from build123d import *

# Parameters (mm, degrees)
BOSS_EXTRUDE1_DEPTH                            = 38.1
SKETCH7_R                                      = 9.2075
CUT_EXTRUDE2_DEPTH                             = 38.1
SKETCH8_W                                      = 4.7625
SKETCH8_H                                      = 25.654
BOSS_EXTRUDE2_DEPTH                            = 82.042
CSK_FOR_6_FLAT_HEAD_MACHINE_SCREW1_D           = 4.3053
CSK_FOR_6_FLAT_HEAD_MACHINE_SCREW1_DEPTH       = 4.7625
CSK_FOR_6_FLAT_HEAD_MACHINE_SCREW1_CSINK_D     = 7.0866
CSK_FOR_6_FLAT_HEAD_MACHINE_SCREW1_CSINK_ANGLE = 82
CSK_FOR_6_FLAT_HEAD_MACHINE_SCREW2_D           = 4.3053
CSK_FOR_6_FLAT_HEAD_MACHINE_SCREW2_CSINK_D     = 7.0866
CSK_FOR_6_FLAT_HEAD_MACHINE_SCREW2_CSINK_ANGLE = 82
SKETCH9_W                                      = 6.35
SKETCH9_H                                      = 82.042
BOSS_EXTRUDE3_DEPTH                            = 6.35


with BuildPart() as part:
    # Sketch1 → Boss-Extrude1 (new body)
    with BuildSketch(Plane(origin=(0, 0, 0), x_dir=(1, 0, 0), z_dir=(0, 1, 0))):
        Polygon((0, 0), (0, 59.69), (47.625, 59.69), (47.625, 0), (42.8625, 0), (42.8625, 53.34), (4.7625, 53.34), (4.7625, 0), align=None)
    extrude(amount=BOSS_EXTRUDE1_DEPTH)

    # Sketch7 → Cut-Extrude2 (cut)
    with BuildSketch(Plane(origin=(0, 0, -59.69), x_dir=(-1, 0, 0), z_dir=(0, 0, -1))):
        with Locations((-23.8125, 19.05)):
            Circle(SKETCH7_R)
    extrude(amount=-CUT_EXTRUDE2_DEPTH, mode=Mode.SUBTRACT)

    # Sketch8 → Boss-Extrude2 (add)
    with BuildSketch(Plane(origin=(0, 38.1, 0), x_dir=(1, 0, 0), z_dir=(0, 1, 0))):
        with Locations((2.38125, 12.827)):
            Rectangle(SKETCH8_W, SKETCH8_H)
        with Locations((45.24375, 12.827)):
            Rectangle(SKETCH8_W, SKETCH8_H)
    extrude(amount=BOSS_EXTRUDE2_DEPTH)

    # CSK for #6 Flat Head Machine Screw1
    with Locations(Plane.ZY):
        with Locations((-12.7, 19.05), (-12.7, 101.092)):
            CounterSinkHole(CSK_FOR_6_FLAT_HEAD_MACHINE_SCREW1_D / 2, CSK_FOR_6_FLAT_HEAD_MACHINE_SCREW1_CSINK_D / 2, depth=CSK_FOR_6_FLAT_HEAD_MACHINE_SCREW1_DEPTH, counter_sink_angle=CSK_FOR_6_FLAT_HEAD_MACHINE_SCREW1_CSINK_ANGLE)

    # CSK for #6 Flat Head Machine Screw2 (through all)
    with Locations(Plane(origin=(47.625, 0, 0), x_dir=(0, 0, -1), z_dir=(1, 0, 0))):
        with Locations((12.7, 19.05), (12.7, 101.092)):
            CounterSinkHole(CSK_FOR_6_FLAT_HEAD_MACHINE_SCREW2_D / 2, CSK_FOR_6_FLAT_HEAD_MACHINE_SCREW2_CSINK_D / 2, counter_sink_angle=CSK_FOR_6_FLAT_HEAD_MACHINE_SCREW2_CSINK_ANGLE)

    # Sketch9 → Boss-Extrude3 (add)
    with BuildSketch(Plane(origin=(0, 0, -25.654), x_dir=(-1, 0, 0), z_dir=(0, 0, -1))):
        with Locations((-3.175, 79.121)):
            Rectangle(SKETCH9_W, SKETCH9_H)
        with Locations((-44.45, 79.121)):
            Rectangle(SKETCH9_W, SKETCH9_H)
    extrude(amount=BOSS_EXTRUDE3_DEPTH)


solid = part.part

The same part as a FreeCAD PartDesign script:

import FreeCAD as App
import Part
import Sketcher
Q = App.Units.Quantity


def add_polygon(sketch, points):
    """Adds a closed chain of lines whose ends are joined by coincident constraints."""
    first, n = sketch.GeometryCount, len(points)
    for a, b in zip(points, points[1:] + points[:1]):
        sketch.addGeometry(Part.LineSegment(App.Vector(*a, 0), App.Vector(*b, 0)), False)
    for i in range(n):
        sketch.addConstraint(Sketcher.Constraint("Coincident", first + i, 2, first + (i + 1) % n, 1))

doc = App.newDocument("Part")
body = doc.addObject("PartDesign::Body", "Body")

sketch1 = body.newObject("Sketcher::SketchObject", "Sketch")
sketch1.AttachmentSupport = (doc.getObject("XZ_Plane"), [""])
sketch1.MapMode = "FlatFace"
add_polygon(sketch1, [(0, -59.69), (0, 0), (4.7625, 0), (4.7625, -53.34), (42.8625, -53.34), (42.8625, 0), (47.625, 0), (47.625, -59.69)])
sketch1.addConstraint([
    Sketcher.Constraint("Vertical", 0),
    Sketcher.Constraint("Horizontal", 1),
    Sketcher.Constraint("Vertical", 2),
    Sketcher.Constraint("Horizontal", 3),
    Sketcher.Constraint("Vertical", 4),
    Sketcher.Constraint("Horizontal", 5),
    Sketcher.Constraint("Vertical", 6),
    Sketcher.Constraint("Horizontal", 7),
    Sketcher.Constraint("Coincident", 0, 2, -1, 1),
    Sketcher.Constraint("PointOnObject", 4, 2, -1),
    Sketcher.Constraint("Equal", 1, 5),
    Sketcher.Constraint("DistanceX", 3, 1, 3, 2, Q("1.5 in")),
    Sketcher.Constraint("DistanceY", 2, 2, 2, 1, Q("2.1 in")),
    Sketcher.Constraint("DistanceY", 0, 1, 0, 2, Q("2.35 in")),
    Sketcher.Constraint("DistanceX", 1, 1, 1, 2, Q("0.1875 in")),
])
pad1 = body.newObject("PartDesign::Pad", "Pad")
pad1.Profile = sketch1
pad1.Length = Q("1.5 in")
pad1.Reversed = True

sketch2 = body.newObject("Sketcher::SketchObject", "Sketch001")
sketch2.AttachmentSupport = (doc.getObject("XY_Plane"), [""])
sketch2.MapMode = "FlatFace"
sketch2.AttachmentOffset = App.Placement(App.Vector(0, 0, -2.35 * 25.4), App.Rotation())
sketch2.addGeometry(Part.Circle(App.Vector(23.8125, 19.05, 0), App.Vector(0, 0, 1), 9.2075), False)
sketch2.addConstraint([
    Sketcher.Constraint("Diameter", 0, Q("0.725 in")),
    Sketcher.Constraint("DistanceY", -1, 1, 0, 3, Q("0.75 in")),
    Sketcher.Constraint("DistanceX", -1, 1, 0, 3, Q("0.9375 in")),
])
pocket1 = body.newObject("PartDesign::Pocket", "Pocket")
pocket1.Profile = sketch2
pocket1.Length = Q("1.5 in")
pocket1.Reversed = True

sketch3 = body.newObject("Sketcher::SketchObject", "Sketch002")
sketch3.AttachmentSupport = (doc.getObject("XZ_Plane"), [""])
sketch3.MapMode = "FlatFace"
sketch3.AttachmentOffset = App.Placement(App.Vector(0, 0, -1.5 * 25.4), App.Rotation())
add_polygon(sketch3, [(0, -25.654), (0, 0), (4.7625, 0), (4.7625, -25.654)])
add_polygon(sketch3, [(42.8625, -25.654), (42.8625, 0), (47.625, 0), (47.625, -25.654)])
sketch3.addConstraint([
    Sketcher.Constraint("Vertical", 0),
    Sketcher.Constraint("Horizontal", 1),
    Sketcher.Constraint("Vertical", 2),
    Sketcher.Constraint("Horizontal", 3),
    Sketcher.Constraint("Vertical", 4),
    Sketcher.Constraint("Horizontal", 5),
    Sketcher.Constraint("Vertical", 6),
    Sketcher.Constraint("Horizontal", 7),
    Sketcher.Constraint("Coincident", 0, 2, -1, 1),
    Sketcher.Constraint("PointOnObject", 4, 2, -1),
    Sketcher.Constraint("Horizontal", 3, 2, 6, 2),
    Sketcher.Constraint("Equal", 3, 5),
    Sketcher.Constraint("DistanceY", 0, 1, 0, 2, Q("1.01 in")),
    Sketcher.Constraint("DistanceX", 1, 2, 4, 2, Q("1.5 in")),
    Sketcher.Constraint("DistanceX", 1, 1, 1, 2, Q("0.1875 in")),
])
pad2 = body.newObject("PartDesign::Pad", "Pad001")
pad2.Profile = sketch3
pad2.Length = Q("3.23 in")
pad2.Reversed = True

sketch4 = body.newObject("Sketcher::SketchObject", "Sketch003")
sketch4.AttachmentSupport = (doc.getObject("YZ_Plane"), [""])
sketch4.MapMode = "FlatFace"
sketch4.addGeometry([
    Part.Circle(App.Vector(19.05, -12.7, 0), App.Vector(0, 0, 1), 2.15265),
    Part.Circle(App.Vector(101.092, -12.7, 0), App.Vector(0, 0, 1), 2.15265),
], False)
sketch4.addConstraint([
    Sketcher.Constraint("Equal", 0, 1),
    Sketcher.Constraint("Horizontal", 0, 3, 1, 3),
    Sketcher.Constraint("Diameter", 0, Q("0.1695 in")),
    Sketcher.Constraint("DistanceY", 0, 3, -1, 1, Q("0.5 in")),
    Sketcher.Constraint("DistanceX", -1, 1, 0, 3, Q("0.75 in")),
    Sketcher.Constraint("DistanceX", -1, 1, 1, 3, Q("3.98 in")),
])
doc.recompute()
hole = body.newObject("PartDesign::Hole", "Hole")
hole.Profile = sketch4
hole.ThreadType = "None"
hole.Diameter = Q("0.1695 in")
hole.DepthType = "Dimension"
hole.Depth = Q("0.1875 in")
hole.DrillPoint = "Flat"
hole.HoleCutType = "Countersink"
hole.HoleCutDiameter = Q("0.279 in")
hole.HoleCutCountersinkAngle = 82
hole.Reversed = True

sketch5 = body.newObject("Sketcher::SketchObject", "Sketch004")
sketch5.AttachmentSupport = (doc.getObject("YZ_Plane"), [""])
sketch5.MapMode = "FlatFace"
sketch5.AttachmentOffset = App.Placement(App.Vector(0, 0, 1.875 * 25.4), App.Rotation())
sketch5.addGeometry([
    Part.Circle(App.Vector(19.05, -12.7, 0), App.Vector(0, 0, 1), 2.15265),
    Part.Circle(App.Vector(101.092, -12.7, 0), App.Vector(0, 0, 1), 2.15265),
], False)
sketch5.addConstraint([
    Sketcher.Constraint("Equal", 0, 1),
    Sketcher.Constraint("Horizontal", 0, 3, 1, 3),
    Sketcher.Constraint("Diameter", 0, Q("0.1695 in")),
    Sketcher.Constraint("DistanceY", 0, 3, -1, 1, Q("0.5 in")),
    Sketcher.Constraint("DistanceX", -1, 1, 0, 3, Q("0.75 in")),
    Sketcher.Constraint("DistanceX", -1, 1, 1, 3, Q("3.98 in")),
])
doc.recompute()
hole2 = body.newObject("PartDesign::Hole", "Hole001")
hole2.Profile = sketch5
hole2.ThreadType = "None"
hole2.Diameter = Q("0.1695 in")
hole2.DepthType = "ThroughAll"
hole2.HoleCutType = "Countersink"
hole2.HoleCutDiameter = Q("0.279 in")
hole2.HoleCutCountersinkAngle = 82

sketch6 = body.newObject("Sketcher::SketchObject", "Sketch005")
sketch6.AttachmentSupport = (doc.getObject("XY_Plane"), [""])
sketch6.MapMode = "FlatFace"
sketch6.AttachmentOffset = App.Placement(App.Vector(0, 0, -1.01 * 25.4), App.Rotation())
add_polygon(sketch6, [(6.35, 120.142), (6.35, 38.1), (0, 38.1), (0, 120.142)])
add_polygon(sketch6, [(47.625, 120.142), (47.625, 38.1), (41.275, 38.1), (41.275, 120.142)])
sketch6.addConstraint([
    Sketcher.Constraint("Vertical", 0),
    Sketcher.Constraint("Horizontal", 1),
    Sketcher.Constraint("Vertical", 2),
    Sketcher.Constraint("Horizontal", 3),
    Sketcher.Constraint("Vertical", 4),
    Sketcher.Constraint("Horizontal", 5),
    Sketcher.Constraint("Vertical", 6),
    Sketcher.Constraint("Horizontal", 7),
    Sketcher.Constraint("PointOnObject", 1, 2, -2),
    Sketcher.Constraint("Horizontal", 1, 2, 4, 2),
    Sketcher.Constraint("Horizontal", 3, 2, 6, 2),
    Sketcher.Constraint("Equal", 3, 5),
    Sketcher.Constraint("DistanceX", 1, 2, 1, 1, Q("0.25 in")),
    Sketcher.Constraint("DistanceY", 0, 2, 0, 1, Q("3.23 in")),
    Sketcher.Constraint("DistanceY", -1, 1, 0, 2, Q("1.5 in")),
    Sketcher.Constraint("DistanceX", -1, 1, 4, 2, Q("1.875 in")),
])
pad3 = body.newObject("PartDesign::Pad", "Pad002")
pad3.Profile = sketch6
pad3.Length = Q("0.25 in")
pad3.Reversed = True

doc.recompute()
